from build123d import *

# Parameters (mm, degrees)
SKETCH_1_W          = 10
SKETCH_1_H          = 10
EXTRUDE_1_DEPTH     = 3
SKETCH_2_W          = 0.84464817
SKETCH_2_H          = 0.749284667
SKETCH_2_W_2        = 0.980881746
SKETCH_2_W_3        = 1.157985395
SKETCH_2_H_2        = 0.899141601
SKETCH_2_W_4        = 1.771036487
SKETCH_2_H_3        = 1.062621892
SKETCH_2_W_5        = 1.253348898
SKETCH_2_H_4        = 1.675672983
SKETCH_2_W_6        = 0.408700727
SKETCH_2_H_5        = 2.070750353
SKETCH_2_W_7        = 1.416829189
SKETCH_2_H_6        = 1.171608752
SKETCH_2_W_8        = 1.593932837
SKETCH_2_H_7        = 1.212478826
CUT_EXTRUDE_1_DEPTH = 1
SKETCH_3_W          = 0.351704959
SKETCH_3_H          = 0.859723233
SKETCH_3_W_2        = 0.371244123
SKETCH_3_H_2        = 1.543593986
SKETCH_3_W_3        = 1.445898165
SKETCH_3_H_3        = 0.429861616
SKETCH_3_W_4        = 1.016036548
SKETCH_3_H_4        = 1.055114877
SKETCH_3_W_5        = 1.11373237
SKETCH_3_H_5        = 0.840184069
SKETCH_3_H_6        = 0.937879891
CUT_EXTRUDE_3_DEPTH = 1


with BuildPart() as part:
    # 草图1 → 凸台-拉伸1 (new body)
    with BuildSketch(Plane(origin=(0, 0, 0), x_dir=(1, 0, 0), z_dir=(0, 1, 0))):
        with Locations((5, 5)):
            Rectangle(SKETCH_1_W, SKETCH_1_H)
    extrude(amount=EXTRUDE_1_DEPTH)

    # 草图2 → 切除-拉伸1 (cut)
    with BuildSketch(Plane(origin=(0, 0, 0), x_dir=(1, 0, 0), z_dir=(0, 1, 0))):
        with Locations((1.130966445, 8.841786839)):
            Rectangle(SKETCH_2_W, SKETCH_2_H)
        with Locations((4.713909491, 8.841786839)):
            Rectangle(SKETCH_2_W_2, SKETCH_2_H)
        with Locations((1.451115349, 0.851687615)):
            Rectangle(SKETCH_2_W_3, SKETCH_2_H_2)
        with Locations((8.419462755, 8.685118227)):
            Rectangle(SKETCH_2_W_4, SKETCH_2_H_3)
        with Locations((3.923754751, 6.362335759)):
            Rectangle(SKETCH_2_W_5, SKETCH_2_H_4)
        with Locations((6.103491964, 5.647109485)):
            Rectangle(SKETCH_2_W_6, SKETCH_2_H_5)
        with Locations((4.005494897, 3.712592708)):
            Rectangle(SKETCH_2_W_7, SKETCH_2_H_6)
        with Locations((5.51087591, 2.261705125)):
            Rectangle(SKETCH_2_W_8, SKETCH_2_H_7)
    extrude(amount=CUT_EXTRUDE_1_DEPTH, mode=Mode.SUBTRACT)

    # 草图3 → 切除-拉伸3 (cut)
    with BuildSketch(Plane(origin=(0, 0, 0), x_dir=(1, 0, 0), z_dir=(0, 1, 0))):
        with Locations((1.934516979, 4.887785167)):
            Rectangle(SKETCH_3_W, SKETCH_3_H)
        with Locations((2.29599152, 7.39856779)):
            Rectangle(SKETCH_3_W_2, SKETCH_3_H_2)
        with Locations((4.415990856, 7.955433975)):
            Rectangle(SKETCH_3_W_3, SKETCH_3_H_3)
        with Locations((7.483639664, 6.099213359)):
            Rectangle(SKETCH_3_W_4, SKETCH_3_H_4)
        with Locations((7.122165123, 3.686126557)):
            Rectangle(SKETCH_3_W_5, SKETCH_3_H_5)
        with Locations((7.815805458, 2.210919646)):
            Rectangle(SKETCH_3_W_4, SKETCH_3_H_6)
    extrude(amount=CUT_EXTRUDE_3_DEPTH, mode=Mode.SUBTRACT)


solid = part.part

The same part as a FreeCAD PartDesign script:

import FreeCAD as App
import Part
import Sketcher

V = App.Vector

doc = App.newDocument("Part")
params = doc.addObject("Spreadsheet::Sheet", "Params")
for row, (alias, value) in enumerate([
    ("sketch1_width", "10 mm"),
    ("pad1_length", "3 mm"),
    ("pocket1_length", "1 mm"),
    ("pocket2_length", "1 mm"),
], start=1):
    params.set(f"A{row}", alias)
    params.set(f"B{row}", "=" + value)
    params.setAlias(f"B{row}", alias)

body = doc.addObject("PartDesign::Body", "Body")

sketch1 = body.newObject("Sketcher::SketchObject", "Sketch")
sketch1.AttachmentSupport = (doc.getObject("XZ_Plane"), [""])
sketch1.MapMode = "FlatFace"
sketch1.addGeometry(Part.LineSegment(V(0, -10, 0), V(0, 0, 0)), False)
sketch1.addGeometry(Part.LineSegment(V(0, 0, 0), V(10, 0, 0)), False)
sketch1.addGeometry(Part.LineSegment(V(10, 0, 0), V(10, -10, 0)), False)
sketch1.addGeometry(Part.LineSegment(V(10, -10, 0), V(0, -10, 0)), False)
sketch1.addConstraint(Sketcher.Constraint("Coincident", 0, 2, 1, 1))
sketch1.addConstraint(Sketcher.Constraint("Coincident", 1, 2, 2, 1))
sketch1.addConstraint(Sketcher.Constraint("Coincident", 2, 2, 3, 1))
sketch1.addConstraint(Sketcher.Constraint("Coincident", 3, 2, 0, 1))
sketch1.addConstraint(Sketcher.Constraint("Vertical", 0))
sketch1.addConstraint(Sketcher.Constraint("Horizontal", 1))
sketch1.addConstraint(Sketcher.Constraint("Vertical", 2))
sketch1.addConstraint(Sketcher.Constraint("Horizontal", 3))
sketch1.addConstraint(Sketcher.Constraint("Coincident", 0, 2, -1, 1))
sketch1.addConstraint(Sketcher.Constraint("Equal", 3, 0))
sketch1.addConstraint(Sketcher.Constraint("DistanceX", 1, 1, 1, 2, 10.0))
sketch1.setExpression("Constraints[10]", "Params.sketch1_width")
pad1 = body.newObject("PartDesign::Pad", "Pad")
pad1.Profile = sketch1
pad1.setExpression("Length", "Params.pad1_length")
pad1.Reversed = True

sketch2 = body.newObject("Sketcher::SketchObject", "Sketch001")
sketch2.AttachmentSupport = (doc.getObject("XZ_Plane"), [""])
sketch2.MapMode = "FlatFace"
sketch2.addGeometry(Part.LineSegment(V(0.708642, -9.216429, 0), V(0.708642, -8.467145, 0)), False)
sketch2.addGeometry(Part.LineSegment(V(0.708642, -8.467145, 0), V(1.553291, -8.467145, 0)), False)
sketch2.addGeometry(Part.LineSegment(V(1.553291, -8.467145, 0), V(1.553291, -9.216429, 0)), False)
sketch2.addGeometry(Part.LineSegment(V(1.553291, -9.216429, 0), V(0.708642, -9.216429, 0)), False)
sketch2.addGeometry(Part.LineSegment(V(4.223469, -9.216429, 0), V(4.223469, -8.467145, 0)), False)
sketch2.addGeometry(Part.LineSegment(V(4.223469, -8.467145, 0), V(5.20435, -8.467145, 0)), False)
sketch2.addGeometry(Part.LineSegment(V(5.20435, -8.467145, 0), V(5.20435, -9.216429, 0)), False)
sketch2.addGeometry(Part.LineSegment(V(5.20435, -9.216429, 0), V(4.223469, -9.216429, 0)), False)
sketch2.addGeometry(Part.LineSegment(V(0.872123, -1.301258, 0), V(0.872123, -0.402117, 0)), False)
sketch2.addGeometry(Part.LineSegment(V(0.872123, -0.402117, 0), V(2.030108, -0.402117, 0)), False)
sketch2.addGeometry(Part.LineSegment(V(2.030108, -0.402117, 0), V(2.030108, -1.301258, 0)), False)
sketch2.addGeometry(Part.LineSegment(V(2.030108, -1.301258, 0), V(0.872123, -1.301258, 0)), False)
sketch2.addGeometry(Part.LineSegment(V(7.533945, -9.216429, 0), V(7.533945, -8.153807, 0)), False)
sketch2.addGeometry(Part.LineSegment(V(7.533945, -8.153807, 0), V(9.304981, -8.153807, 0)), False)
sketch2.addGeometry(Part.LineSegment(V(9.304981, -8.153807, 0), V(9.304981, -9.216429, 0)), False)
sketch2.addGeometry(Part.LineSegment(V(9.304981, -9.216429, 0), V(7.533945, -9.216429, 0)), False)
sketch2.addGeometry(Part.LineSegment(V(3.29708, -7.200172, 0), V(3.29708, -5.524499, 0)), False)
sketch2.addGeometry(Part.LineSegment(V(3.29708, -5.524499, 0), V(4.550429, -5.524499, 0)), False)
sketch2.addGeometry(Part.LineSegment(V(4.550429, -5.524499, 0), V(4.550429, -7.200172, 0)), False)
sketch2.addGeometry(Part.LineSegment(V(4.550429, -7.200172, 0), V(3.29708, -7.200172, 0)), False)
sketch2.addGeometry(Part.LineSegment(V(5.899142, -6.682485, 0), V(5.899142, -4.611734, 0)), False)
sketch2.addGeometry(Part.LineSegment(V(5.899142, -4.611734, 0), V(6.307842, -4.611734, 0)), False)
sketch2.addGeometry(Part.LineSegment(V(6.307842, -4.611734, 0), V(6.307842, -6.682485, 0)), False)
sketch2.addGeometry(Part.LineSegment(V(6.307842, -6.682485, 0), V(5.899142, -6.682485, 0)), False)
sketch2.addGeometry(Part.LineSegment(V(3.29708, -4.298397, 0), V(3.29708, -3.126788, 0)), False)
sketch2.addGeometry(Part.LineSegment(V(3.29708, -3.126788, 0), V(4.713909, -3.126788, 0)), False)
sketch2.addGeometry(Part.LineSegment(V(4.713909, -3.126788, 0), V(4.713909, -4.298397, 0)), False)
sketch2.addGeometry(Part.LineSegment(V(4.713909, -4.298397, 0), V(3.29708, -4.298397, 0)), False)
sketch2.addGeometry(Part.LineSegment(V(4.713909, -2.867945, 0), V(4.713909, -1.655466, 0)), False)
sketch2.addGeometry(Part.LineSegment(V(4.713909, -1.655466, 0), V(6.307842, -1.655466, 0)), False)
sketch2.addGeometry(Part.LineSegment(V(6.307842, -1.655466, 0), V(6.307842, -2.867945, 0)), False)
sketch2.addGeometry(Part.LineSegment(V(6.307842, -2.867945, 0), V(4.713909, -2.867945, 0)), False)
sketch2.addConstraint(Sketcher.Constraint("Coincident", 0, 2, 1, 1))
sketch2.addConstraint(Sketcher.Constraint("Coincident", 1, 2, 2, 1))
sketch2.addConstraint(Sketcher.Constraint("Coincident", 2, 2, 3, 1))
sketch2.addConstraint(Sketcher.Constraint("Coincident", 3, 2, 0, 1))
sketch2.addConstraint(Sketcher.Constraint("Coincident", 4, 2, 5, 1))
sketch2.addConstraint(Sketcher.Constraint("Coincident", 5, 2, 6, 1))
sketch2.addConstraint(Sketcher.Constraint("Coincident", 6, 2, 7, 1))
sketch2.addConstraint(Sketcher.Constraint("Coincident", 7, 2, 4, 1))
sketch2.addConstraint(Sketcher.Constraint("Coincident", 8, 2, 9, 1))
sketch2.addConstraint(Sketcher.Constraint("Coincident", 9, 2, 10, 1))
sketch2.addConstraint(Sketcher.Constraint("Coincident", 10, 2, 11, 1))
sketch2.addConstraint(Sketcher.Constraint("Coincident", 11, 2, 8, 1))
sketch2.addConstraint(Sketcher.Constraint("Coincident", 12, 2, 13, 1))
sketch2.addConstraint(Sketcher.Constraint("Coincident", 13, 2, 14, 1))
sketch2.addConstraint(Sketcher.Constraint("Coincident", 14, 2, 15, 1))
sketch2.addConstraint(Sketcher.Constraint("Coincident", 15, 2, 12, 1))
sketch2.addConstraint(Sketcher.Constraint("Coincident", 16, 2, 17, 1))
sketch2.addConstraint(Sketcher.Constraint("Coincident", 17, 2, 18, 1))
sketch2.addConstraint(Sketcher.Constraint("Coincident", 18, 2, 19, 1))
sketch2.addConstraint(Sketcher.Constraint("Coincident", 19, 2, 16, 1))
sketch2.addConstraint(Sketcher.Constraint("Coincident", 20, 2, 21, 1))
sketch2.addConstraint(Sketcher.Constraint("Coincident", 21, 2, 22, 1))
sketch2.addConstraint(Sketcher.Constraint("Coincident", 22, 2, 23, 1))
sketch2.addConstraint(Sketcher.Constraint("Coincident", 23, 2, 20, 1))
sketch2.addConstraint(Sketcher.Constraint("Coincident", 24, 2, 25, 1))
sketch2.addConstraint(Sketcher.Constraint("Coincident", 25, 2, 26, 1))
sketch2.addConstraint(Sketcher.Constraint("Coincident", 26, 2, 27, 1))
sketch2.addConstraint(Sketcher.Constraint("Coincident", 27, 2, 24, 1))
sketch2.addConstraint(Sketcher.Constraint("Coincident", 28, 2, 29, 1))
sketch2.addConstraint(Sketcher.Constraint("Coincident", 29, 2, 30, 1))
sketch2.addConstraint(Sketcher.Constraint("Coincident", 30, 2, 31, 1))
sketch2.addConstraint(Sketcher.Constraint("Coincident", 31, 2, 28, 1))
sketch2.addConstraint(Sketcher.Constraint("Vertical", 0))
sketch2.addConstraint(Sketcher.Constraint("Horizontal", 1))
sketch2.addConstraint(Sketcher.Constraint("Vertical", 2))
sketch2.addConstraint(Sketcher.Constraint("Horizontal", 3))
sketch2.addConstraint(Sketcher.Constraint("Vertical", 4))
sketch2.addConstraint(Sketcher.Constraint("Horizontal", 5))
sketch2.addConstraint(Sketcher.Constraint("Vertical", 6))
sketch2.addConstraint(Sketcher.Constraint("Horizontal", 7))
sketch2.addConstraint(Sketcher.Constraint("Vertical", 8))
sketch2.addConstraint(Sketcher.Constraint("Horizontal", 9))
sketch2.addConstraint(Sketcher.Constraint("Vertical", 10))
sketch2.addConstraint(Sketcher.Constraint("Horizontal", 11))
sketch2.addConstraint(Sketcher.Constraint("Vertical", 12))
sketch2.addConstraint(Sketcher.Constraint("Horizontal", 13))
sketch2.addConstraint(Sketcher.Constraint("Vertical", 14))
sketch2.addConstraint(Sketcher.Constraint("Horizontal", 15))
sketch2.addConstraint(Sketcher.Constraint("Vertical", 16))
sketch2.addConstraint(Sketcher.Constraint("Horizontal", 17))
sketch2.addConstraint(Sketcher.Constraint("Vertical", 18))
sketch2.addConstraint(Sketcher.Constraint("Horizontal", 19))
sketch2.addConstraint(Sketcher.Constraint("Vertical", 20))
sketch2.addConstraint(Sketcher.Constraint("Horizontal", 21))
sketch2.addConstraint(Sketcher.Constraint("Vertical", 22))
sketch2.addConstraint(Sketcher.Constraint("Horizontal", 23))
sketch2.addConstraint(Sketcher.Constraint("Vertical", 24))
sketch2.addConstraint(Sketcher.Constraint("Horizontal", 25))
sketch2.addConstraint(Sketcher.Constraint("Vertical", 26))
sketch2.addConstraint(Sketcher.Constraint("Horizontal", 27))
sketch2.addConstraint(Sketcher.Constraint("Vertical", 28))
sketch2.addConstraint(Sketcher.Constraint("Horizontal", 29))
sketch2.addConstraint(Sketcher.Constraint("Vertical", 30))
sketch2.addConstraint(Sketcher.Constraint("Horizontal", 31))
sketch2.addConstraint(Sketcher.Constraint("Horizontal", 1, 2, 4, 2))
sketch2.addConstraint(Sketcher.Constraint("Horizontal", 3, 2, 6, 2))
sketch2.addConstraint(Sketcher.Constraint("Horizontal", 7, 2, 14, 2))
sketch2.addConstraint(Sketcher.Constraint("Vertical", 19, 2, 24, 2))
sketch2.addConstraint(Sketcher.Constraint("Vertical", 26, 2, 28, 2))
sketch2.addConstraint(Sketcher.Constraint("Vertical", 22, 2, 29, 2))
sketch2.addConstraint(Sketcher.Constraint("DistanceX", 21, 1, 21, 2, 0.408701))
sketch2.addConstraint(Sketcher.Constraint("DistanceX", 1, 1, 1, 2, 0.844648))
sketch2.addConstraint(Sketcher.Constraint("DistanceX", 5, 1, 5, 2, 0.980882))
sketch2.addConstraint(Sketcher.Constraint("DistanceX", 17, 1, 17, 2, 1.253349))
sketch2.addConstraint(Sketcher.Constraint("DistanceX", 25, 1, 25, 2, 1.416829))
sketch2.addConstraint(Sketcher.Constraint("DistanceY", 8, 1, 8, 2, 0.899142))
sketch2.addConstraint(Sketcher.Constraint("DistanceY", 12, 1, 12, 2, 1.062622))
sketch2.addConstraint(Sketcher.Constraint("DistanceY", 20, 1, 20, 2, 2.07075))
sketch2.addConstraint(Sketcher.Constraint("DistanceY", 24, 1, 24, 2, 1.171609))
sketch2.addConstraint(Sketcher.Constraint("DistanceY", 28, 1, 28, 2, 1.212479))
sketch2.addConstraint(Sketcher.Constraint("DistanceY", 16, 2, -1, 1, 5.524499))
sketch2.addConstraint(Sketcher.Constraint("DistanceX", 10, 2, 28, 2, 2.683801))
sketch2.addConstraint(Sketcher.Constraint("DistanceX", 9, 1, 9, 2, 1.157985))
sketch2.addConstraint(Sketcher.Constraint("DistanceX", 13, 1, 13, 2, 1.771036))
sketch2.addConstraint(Sketcher.Constraint("DistanceX", 29, 1, 29, 2, 1.593933))
sketch2.addConstraint(Sketcher.Constraint("DistanceY", 0, 1, 0, 2, 0.749285))
sketch2.addConstraint(Sketcher.Constraint("DistanceY", 16, 1, 16, 2, 1.675673))
sketch2.addConstraint(Sketcher.Constraint("DistanceX", -1, 1, 1, 2, 1.553291))
sketch2.addConstraint(Sketcher.Constraint("DistanceY", 2, 2, -1, 1, 9.216429))
sketch2.addConstraint(Sketcher.Constraint("DistanceX", -1, 1, 4, 2, 4.223469))
sketch2.addConstraint(Sketcher.Constraint("DistanceX", -1, 1, 9, 2, 2.030108))
sketch2.addConstraint(Sketcher.Constraint("DistanceY", 10, 2, -1, 1, 1.301258))
sketch2.addConstraint(Sketcher.Constraint("DistanceX", -1, 1, 13, 2, 9.304981))
sketch2.addConstraint(Sketcher.Constraint("DistanceY", 24, 2, -1, 1, 3.126788))
sketch2.addConstraint(Sketcher.Constraint("DistanceY", 5, 2, 22, 2, 1.78466))
sketch2.addConstraint(Sketcher.Constraint("DistanceY", 26, 2, 28, 2, 2.642931))
pocket1 = body.newObject("PartDesign::Pocket", "Pocket")
pocket1.Profile = sketch2
pocket1.setExpression("Length", "Params.pocket1_length")

sketch3 = body.newObject("Sketcher::SketchObject", "Sketch002")
sketch3.AttachmentSupport = (doc.getObject("XZ_Plane"), [""])
sketch3.MapMode = "FlatFace"
sketch3.addGeometry(Part.LineSegment(V(1.758665, -5.317647, 0), V(1.758665, -4.457924, 0)), False)
sketch3.addGeometry(Part.LineSegment(V(1.758665, -4.457924, 0), V(2.110369, -4.457924, 0)), False)
sketch3.addGeometry(Part.LineSegment(V(2.110369, -4.457924, 0), V(2.110369, -5.317647, 0)), False)
sketch3.addGeometry(Part.LineSegment(V(2.110369, -5.317647, 0), V(1.758665, -5.317647, 0)), False)
sketch3.addGeometry(Part.LineSegment(V(2.110369, -8.170365, 0), V(2.110369, -6.626771, 0)), False)
sketch3.addGeometry(Part.LineSegment(V(2.110369, -6.626771, 0), V(2.481614, -6.626771, 0)), False)
sketch3.addGeometry(Part.LineSegment(V(2.481614, -6.626771, 0), V(2.481614, -8.170365, 0)), False)
sketch3.addGeometry(Part.LineSegment(V(2.481614, -8.170365, 0), V(2.110369, -8.170365, 0)), False)
sketch3.addGeometry(Part.LineSegment(V(3.693042, -8.170365, 0), V(3.693042, -7.740503, 0)), False)
sketch3.addGeometry(Part.LineSegment(V(3.693042, -7.740503, 0), V(5.13894, -7.740503, 0)), False)
sketch3.addGeometry(Part.LineSegment(V(5.13894, -7.740503, 0), V(5.13894, -8.170365, 0)), False)
sketch3.addGeometry(Part.LineSegment(V(5.13894, -8.170365, 0), V(3.693042, -8.170365, 0)), False)
sketch3.addGeometry(Part.LineSegment(V(6.975621, -6.626771, 0), V(6.975621, -5.571656, 0)), False)
sketch3.addGeometry(Part.LineSegment(V(6.975621, -5.571656, 0), V(7.991658, -5.571656, 0)), False)
sketch3.addGeometry(Part.LineSegment(V(7.991658, -5.571656, 0), V(7.991658, -6.626771, 0)), False)
sketch3.addGeometry(Part.LineSegment(V(7.991658, -6.626771, 0), V(6.975621, -6.626771, 0)), False)
sketch3.addGeometry(Part.LineSegment(V(6.565299, -4.106219, 0), V(6.565299, -3.266035, 0)), False)
sketch3.addGeometry(Part.LineSegment(V(6.565299, -3.266035, 0), V(7.679031, -3.266035, 0)), False)
sketch3.addGeometry(Part.LineSegment(V(7.679031, -3.266035, 0), V(7.679031, -4.106219, 0)), False)
sketch3.addGeometry(Part.LineSegment(V(7.679031, -4.106219, 0), V(6.565299, -4.106219, 0)), False)
sketch3.addGeometry(Part.LineSegment(V(7.307787, -2.67986, 0), V(7.307787, -1.74198, 0)), False)
sketch3.addGeometry(Part.LineSegment(V(7.307787, -1.74198, 0), V(8.323824, -1.74198, 0)), False)
sketch3.addGeometry(Part.LineSegment(V(8.323824, -1.74198, 0), V(8.323824, -2.67986, 0)), False)
sketch3.addGeometry(Part.LineSegment(V(8.323824, -2.67986, 0), V(7.307787, -2.67986, 0)), False)
sketch3.addConstraint(Sketcher.Constraint("Coincident", 0, 2, 1, 1))
sketch3.addConstraint(Sketcher.Constraint("Coincident", 1, 2, 2, 1))
sketch3.addConstraint(Sketcher.Constraint("Coincident", 2, 2, 3, 1))
sketch3.addConstraint(Sketcher.Constraint("Coincident", 3, 2, 0, 1))
sketch3.addConstraint(Sketcher.Constraint("Coincident", 4, 2, 5, 1))
sketch3.addConstraint(Sketcher.Constraint("Coincident", 5, 2, 6, 1))
sketch3.addConstraint(Sketcher.Constraint("Coincident", 6, 2, 7, 1))
sketch3.addConstraint(Sketcher.Constraint("Coincident", 7, 2, 4, 1))
sketch3.addConstraint(Sketcher.Constraint("Coincident", 8, 2, 9, 1))
sketch3.addConstraint(Sketcher.Constraint("Coincident", 9, 2, 10, 1))
sketch3.addConstraint(Sketcher.Constraint("Coincident", 10, 2, 11, 1))
sketch3.addConstraint(Sketcher.Constraint("Coincident", 11, 2, 8, 1))
sketch3.addConstraint(Sketcher.Constraint("Coincident", 12, 2, 13, 1))
sketch3.addConstraint(Sketcher.Constraint("Coincident", 13, 2, 14, 1))
sketch3.addConstraint(Sketcher.Constraint("Coincident", 14, 2, 15, 1))
sketch3.addConstraint(Sketcher.Constraint("Coincident", 15, 2, 12, 1))
sketch3.addConstraint(Sketcher.Constraint("Coincident", 16, 2, 17, 1))
sketch3.addConstraint(Sketcher.Constraint("Coincident", 17, 2, 18, 1))
sketch3.addConstraint(Sketcher.Constraint("Coincident", 18, 2, 19, 1))
sketch3.addConstraint(Sketcher.Constraint("Coincident", 19, 2, 16, 1))
sketch3.addConstraint(Sketcher.Constraint("Coincident", 20, 2, 21, 1))
sketch3.addConstraint(Sketcher.Constraint("Coincident", 21, 2, 22, 1))
sketch3.addConstraint(Sketcher.Constraint("Coincident", 22, 2, 23, 1))
sketch3.addConstraint(Sketcher.Constraint("Coincident", 23, 2, 20, 1))
sketch3.addConstraint(Sketcher.Constraint("Vertical", 0))
sketch3.addConstraint(Sketcher.Constraint("Horizontal", 1))
sketch3.addConstraint(Sketcher.Constraint("Vertical", 2))
sketch3.addConstraint(Sketcher.Constraint("Horizontal", 3))
sketch3.addConstraint(Sketcher.Constraint("Vertical", 4))
sketch3.addConstraint(Sketcher.Constraint("Horizontal", 5))
sketch3.addConstraint(Sketcher.Constraint("Vertical", 6))
sketch3.addConstraint(Sketcher.Constraint("Horizontal", 7))
sketch3.addConstraint(Sketcher.Constraint("Vertical", 8))
sketch3.addConstraint(Sketcher.Constraint("Horizontal", 9))
sketch3.addConstraint(Sketcher.Constraint("Vertical", 10))
sketch3.addConstraint(Sketcher.Constraint("Horizontal", 11))
sketch3.addConstraint(Sketcher.Constraint("Vertical", 12))
sketch3.addConstraint(Sketcher.Constraint("Horizontal", 13))
sketch3.addConstraint(Sketcher.Constraint("Vertical", 14))
sketch3.addConstraint(Sketcher.Constraint("Horizontal", 15))
sketch3.addConstraint(Sketcher.Constraint("Vertical", 16))
sketch3.addConstraint(Sketcher.Constraint("Horizontal", 17))
sketch3.addConstraint(Sketcher.Constraint("Vertical", 18))
sketch3.addConstraint(Sketcher.Constraint("Horizontal", 19))
sketch3.addConstraint(Sketcher.Constraint("Vertical", 20))
sketch3.addConstraint(Sketcher.Constraint("Horizontal", 21))
sketch3.addConstraint(Sketcher.Constraint("Vertical", 22))
sketch3.addConstraint(Sketcher.Constraint("Horizontal", 23))
sketch3.addConstraint(Sketcher.Constraint("Horizontal", 7, 2, 10, 2))
sketch3.addConstraint(Sketcher.Constraint("Horizontal", 5, 2, 14, 2))
sketch3.addConstraint(Sketcher.Constraint("Vertical", 2, 2, 4, 2))
sketch3.addConstraint(Sketcher.Constraint("Equal", 15, 21))
sketch3.addConstraint(Sketcher.Constraint("DistanceX", 9, 1, 9, 2, 1.445898))
sketch3.addConstraint(Sketcher.Constraint("DistanceY", 8, 1, 8, 2, 0.429862))
sketch3.addConstraint(Sketcher.Constraint("DistanceY", 20, 1, 20, 2, 0.93788))
sketch3.addConstraint(Sketcher.Constraint("DistanceX", -1, 1, 16, 2, 6.565299))
sketch3.addConstraint(Sketcher.Constraint("DistanceX", 1, 1, 1, 2, 0.351705))
sketch3.addConstraint(Sketcher.Constraint("DistanceX", 5, 1, 5, 2, 0.371244))
sketch3.addConstraint(Sketcher.Constraint("DistanceX", 13, 1, 13, 2, 1.016037))
sketch3.addConstraint(Sketcher.Constraint("DistanceX", 17, 1, 17, 2, 1.113732))
sketch3.addConstraint(Sketcher.Constraint("DistanceY", 0, 1, 0, 2, 0.859723))
sketch3.addConstraint(Sketcher.Constraint("DistanceY", 4, 1, 4, 2, 1.543594))
sketch3.addConstraint(Sketcher.Constraint("DistanceY", 12, 1, 12, 2, 1.055115))
sketch3.addConstraint(Sketcher.Constraint("DistanceY", 16, 1, 16, 2, 0.840184))
sketch3.addConstraint(Sketcher.Constraint("DistanceX", -1, 1, 1, 2, 2.110369))
sketch3.addConstraint(Sketcher.Constraint("DistanceY", 4, 2, -1, 1, 6.626771))
sketch3.addConstraint(Sketcher.Constraint("DistanceX", -1, 1, 8, 2, 3.693042))
sketch3.addConstraint(Sketcher.Constraint("DistanceX", -1, 1, 12, 2, 6.975621))
sketch3.addConstraint(Sketcher.Constraint("DistanceY", 18, 2, -1, 1, 4.106219))
sketch3.addConstraint(Sketcher.Constraint("DistanceY", 20, 2, -1, 1, 1.74198))
sketch3.addConstraint(Sketcher.Constraint("DistanceY", 6, 2, 2, 2, 2.852718))
sketch3.addConstraint(Sketcher.Constraint("DistanceX", 16, 2, 20, 2, 0.742488))
pocket2 = body.newObject("PartDesign::Pocket", "Pocket001")
pocket2.Profile = sketch3
pocket2.setExpression("Length", "Params.pocket2_length")

doc.recompute()
